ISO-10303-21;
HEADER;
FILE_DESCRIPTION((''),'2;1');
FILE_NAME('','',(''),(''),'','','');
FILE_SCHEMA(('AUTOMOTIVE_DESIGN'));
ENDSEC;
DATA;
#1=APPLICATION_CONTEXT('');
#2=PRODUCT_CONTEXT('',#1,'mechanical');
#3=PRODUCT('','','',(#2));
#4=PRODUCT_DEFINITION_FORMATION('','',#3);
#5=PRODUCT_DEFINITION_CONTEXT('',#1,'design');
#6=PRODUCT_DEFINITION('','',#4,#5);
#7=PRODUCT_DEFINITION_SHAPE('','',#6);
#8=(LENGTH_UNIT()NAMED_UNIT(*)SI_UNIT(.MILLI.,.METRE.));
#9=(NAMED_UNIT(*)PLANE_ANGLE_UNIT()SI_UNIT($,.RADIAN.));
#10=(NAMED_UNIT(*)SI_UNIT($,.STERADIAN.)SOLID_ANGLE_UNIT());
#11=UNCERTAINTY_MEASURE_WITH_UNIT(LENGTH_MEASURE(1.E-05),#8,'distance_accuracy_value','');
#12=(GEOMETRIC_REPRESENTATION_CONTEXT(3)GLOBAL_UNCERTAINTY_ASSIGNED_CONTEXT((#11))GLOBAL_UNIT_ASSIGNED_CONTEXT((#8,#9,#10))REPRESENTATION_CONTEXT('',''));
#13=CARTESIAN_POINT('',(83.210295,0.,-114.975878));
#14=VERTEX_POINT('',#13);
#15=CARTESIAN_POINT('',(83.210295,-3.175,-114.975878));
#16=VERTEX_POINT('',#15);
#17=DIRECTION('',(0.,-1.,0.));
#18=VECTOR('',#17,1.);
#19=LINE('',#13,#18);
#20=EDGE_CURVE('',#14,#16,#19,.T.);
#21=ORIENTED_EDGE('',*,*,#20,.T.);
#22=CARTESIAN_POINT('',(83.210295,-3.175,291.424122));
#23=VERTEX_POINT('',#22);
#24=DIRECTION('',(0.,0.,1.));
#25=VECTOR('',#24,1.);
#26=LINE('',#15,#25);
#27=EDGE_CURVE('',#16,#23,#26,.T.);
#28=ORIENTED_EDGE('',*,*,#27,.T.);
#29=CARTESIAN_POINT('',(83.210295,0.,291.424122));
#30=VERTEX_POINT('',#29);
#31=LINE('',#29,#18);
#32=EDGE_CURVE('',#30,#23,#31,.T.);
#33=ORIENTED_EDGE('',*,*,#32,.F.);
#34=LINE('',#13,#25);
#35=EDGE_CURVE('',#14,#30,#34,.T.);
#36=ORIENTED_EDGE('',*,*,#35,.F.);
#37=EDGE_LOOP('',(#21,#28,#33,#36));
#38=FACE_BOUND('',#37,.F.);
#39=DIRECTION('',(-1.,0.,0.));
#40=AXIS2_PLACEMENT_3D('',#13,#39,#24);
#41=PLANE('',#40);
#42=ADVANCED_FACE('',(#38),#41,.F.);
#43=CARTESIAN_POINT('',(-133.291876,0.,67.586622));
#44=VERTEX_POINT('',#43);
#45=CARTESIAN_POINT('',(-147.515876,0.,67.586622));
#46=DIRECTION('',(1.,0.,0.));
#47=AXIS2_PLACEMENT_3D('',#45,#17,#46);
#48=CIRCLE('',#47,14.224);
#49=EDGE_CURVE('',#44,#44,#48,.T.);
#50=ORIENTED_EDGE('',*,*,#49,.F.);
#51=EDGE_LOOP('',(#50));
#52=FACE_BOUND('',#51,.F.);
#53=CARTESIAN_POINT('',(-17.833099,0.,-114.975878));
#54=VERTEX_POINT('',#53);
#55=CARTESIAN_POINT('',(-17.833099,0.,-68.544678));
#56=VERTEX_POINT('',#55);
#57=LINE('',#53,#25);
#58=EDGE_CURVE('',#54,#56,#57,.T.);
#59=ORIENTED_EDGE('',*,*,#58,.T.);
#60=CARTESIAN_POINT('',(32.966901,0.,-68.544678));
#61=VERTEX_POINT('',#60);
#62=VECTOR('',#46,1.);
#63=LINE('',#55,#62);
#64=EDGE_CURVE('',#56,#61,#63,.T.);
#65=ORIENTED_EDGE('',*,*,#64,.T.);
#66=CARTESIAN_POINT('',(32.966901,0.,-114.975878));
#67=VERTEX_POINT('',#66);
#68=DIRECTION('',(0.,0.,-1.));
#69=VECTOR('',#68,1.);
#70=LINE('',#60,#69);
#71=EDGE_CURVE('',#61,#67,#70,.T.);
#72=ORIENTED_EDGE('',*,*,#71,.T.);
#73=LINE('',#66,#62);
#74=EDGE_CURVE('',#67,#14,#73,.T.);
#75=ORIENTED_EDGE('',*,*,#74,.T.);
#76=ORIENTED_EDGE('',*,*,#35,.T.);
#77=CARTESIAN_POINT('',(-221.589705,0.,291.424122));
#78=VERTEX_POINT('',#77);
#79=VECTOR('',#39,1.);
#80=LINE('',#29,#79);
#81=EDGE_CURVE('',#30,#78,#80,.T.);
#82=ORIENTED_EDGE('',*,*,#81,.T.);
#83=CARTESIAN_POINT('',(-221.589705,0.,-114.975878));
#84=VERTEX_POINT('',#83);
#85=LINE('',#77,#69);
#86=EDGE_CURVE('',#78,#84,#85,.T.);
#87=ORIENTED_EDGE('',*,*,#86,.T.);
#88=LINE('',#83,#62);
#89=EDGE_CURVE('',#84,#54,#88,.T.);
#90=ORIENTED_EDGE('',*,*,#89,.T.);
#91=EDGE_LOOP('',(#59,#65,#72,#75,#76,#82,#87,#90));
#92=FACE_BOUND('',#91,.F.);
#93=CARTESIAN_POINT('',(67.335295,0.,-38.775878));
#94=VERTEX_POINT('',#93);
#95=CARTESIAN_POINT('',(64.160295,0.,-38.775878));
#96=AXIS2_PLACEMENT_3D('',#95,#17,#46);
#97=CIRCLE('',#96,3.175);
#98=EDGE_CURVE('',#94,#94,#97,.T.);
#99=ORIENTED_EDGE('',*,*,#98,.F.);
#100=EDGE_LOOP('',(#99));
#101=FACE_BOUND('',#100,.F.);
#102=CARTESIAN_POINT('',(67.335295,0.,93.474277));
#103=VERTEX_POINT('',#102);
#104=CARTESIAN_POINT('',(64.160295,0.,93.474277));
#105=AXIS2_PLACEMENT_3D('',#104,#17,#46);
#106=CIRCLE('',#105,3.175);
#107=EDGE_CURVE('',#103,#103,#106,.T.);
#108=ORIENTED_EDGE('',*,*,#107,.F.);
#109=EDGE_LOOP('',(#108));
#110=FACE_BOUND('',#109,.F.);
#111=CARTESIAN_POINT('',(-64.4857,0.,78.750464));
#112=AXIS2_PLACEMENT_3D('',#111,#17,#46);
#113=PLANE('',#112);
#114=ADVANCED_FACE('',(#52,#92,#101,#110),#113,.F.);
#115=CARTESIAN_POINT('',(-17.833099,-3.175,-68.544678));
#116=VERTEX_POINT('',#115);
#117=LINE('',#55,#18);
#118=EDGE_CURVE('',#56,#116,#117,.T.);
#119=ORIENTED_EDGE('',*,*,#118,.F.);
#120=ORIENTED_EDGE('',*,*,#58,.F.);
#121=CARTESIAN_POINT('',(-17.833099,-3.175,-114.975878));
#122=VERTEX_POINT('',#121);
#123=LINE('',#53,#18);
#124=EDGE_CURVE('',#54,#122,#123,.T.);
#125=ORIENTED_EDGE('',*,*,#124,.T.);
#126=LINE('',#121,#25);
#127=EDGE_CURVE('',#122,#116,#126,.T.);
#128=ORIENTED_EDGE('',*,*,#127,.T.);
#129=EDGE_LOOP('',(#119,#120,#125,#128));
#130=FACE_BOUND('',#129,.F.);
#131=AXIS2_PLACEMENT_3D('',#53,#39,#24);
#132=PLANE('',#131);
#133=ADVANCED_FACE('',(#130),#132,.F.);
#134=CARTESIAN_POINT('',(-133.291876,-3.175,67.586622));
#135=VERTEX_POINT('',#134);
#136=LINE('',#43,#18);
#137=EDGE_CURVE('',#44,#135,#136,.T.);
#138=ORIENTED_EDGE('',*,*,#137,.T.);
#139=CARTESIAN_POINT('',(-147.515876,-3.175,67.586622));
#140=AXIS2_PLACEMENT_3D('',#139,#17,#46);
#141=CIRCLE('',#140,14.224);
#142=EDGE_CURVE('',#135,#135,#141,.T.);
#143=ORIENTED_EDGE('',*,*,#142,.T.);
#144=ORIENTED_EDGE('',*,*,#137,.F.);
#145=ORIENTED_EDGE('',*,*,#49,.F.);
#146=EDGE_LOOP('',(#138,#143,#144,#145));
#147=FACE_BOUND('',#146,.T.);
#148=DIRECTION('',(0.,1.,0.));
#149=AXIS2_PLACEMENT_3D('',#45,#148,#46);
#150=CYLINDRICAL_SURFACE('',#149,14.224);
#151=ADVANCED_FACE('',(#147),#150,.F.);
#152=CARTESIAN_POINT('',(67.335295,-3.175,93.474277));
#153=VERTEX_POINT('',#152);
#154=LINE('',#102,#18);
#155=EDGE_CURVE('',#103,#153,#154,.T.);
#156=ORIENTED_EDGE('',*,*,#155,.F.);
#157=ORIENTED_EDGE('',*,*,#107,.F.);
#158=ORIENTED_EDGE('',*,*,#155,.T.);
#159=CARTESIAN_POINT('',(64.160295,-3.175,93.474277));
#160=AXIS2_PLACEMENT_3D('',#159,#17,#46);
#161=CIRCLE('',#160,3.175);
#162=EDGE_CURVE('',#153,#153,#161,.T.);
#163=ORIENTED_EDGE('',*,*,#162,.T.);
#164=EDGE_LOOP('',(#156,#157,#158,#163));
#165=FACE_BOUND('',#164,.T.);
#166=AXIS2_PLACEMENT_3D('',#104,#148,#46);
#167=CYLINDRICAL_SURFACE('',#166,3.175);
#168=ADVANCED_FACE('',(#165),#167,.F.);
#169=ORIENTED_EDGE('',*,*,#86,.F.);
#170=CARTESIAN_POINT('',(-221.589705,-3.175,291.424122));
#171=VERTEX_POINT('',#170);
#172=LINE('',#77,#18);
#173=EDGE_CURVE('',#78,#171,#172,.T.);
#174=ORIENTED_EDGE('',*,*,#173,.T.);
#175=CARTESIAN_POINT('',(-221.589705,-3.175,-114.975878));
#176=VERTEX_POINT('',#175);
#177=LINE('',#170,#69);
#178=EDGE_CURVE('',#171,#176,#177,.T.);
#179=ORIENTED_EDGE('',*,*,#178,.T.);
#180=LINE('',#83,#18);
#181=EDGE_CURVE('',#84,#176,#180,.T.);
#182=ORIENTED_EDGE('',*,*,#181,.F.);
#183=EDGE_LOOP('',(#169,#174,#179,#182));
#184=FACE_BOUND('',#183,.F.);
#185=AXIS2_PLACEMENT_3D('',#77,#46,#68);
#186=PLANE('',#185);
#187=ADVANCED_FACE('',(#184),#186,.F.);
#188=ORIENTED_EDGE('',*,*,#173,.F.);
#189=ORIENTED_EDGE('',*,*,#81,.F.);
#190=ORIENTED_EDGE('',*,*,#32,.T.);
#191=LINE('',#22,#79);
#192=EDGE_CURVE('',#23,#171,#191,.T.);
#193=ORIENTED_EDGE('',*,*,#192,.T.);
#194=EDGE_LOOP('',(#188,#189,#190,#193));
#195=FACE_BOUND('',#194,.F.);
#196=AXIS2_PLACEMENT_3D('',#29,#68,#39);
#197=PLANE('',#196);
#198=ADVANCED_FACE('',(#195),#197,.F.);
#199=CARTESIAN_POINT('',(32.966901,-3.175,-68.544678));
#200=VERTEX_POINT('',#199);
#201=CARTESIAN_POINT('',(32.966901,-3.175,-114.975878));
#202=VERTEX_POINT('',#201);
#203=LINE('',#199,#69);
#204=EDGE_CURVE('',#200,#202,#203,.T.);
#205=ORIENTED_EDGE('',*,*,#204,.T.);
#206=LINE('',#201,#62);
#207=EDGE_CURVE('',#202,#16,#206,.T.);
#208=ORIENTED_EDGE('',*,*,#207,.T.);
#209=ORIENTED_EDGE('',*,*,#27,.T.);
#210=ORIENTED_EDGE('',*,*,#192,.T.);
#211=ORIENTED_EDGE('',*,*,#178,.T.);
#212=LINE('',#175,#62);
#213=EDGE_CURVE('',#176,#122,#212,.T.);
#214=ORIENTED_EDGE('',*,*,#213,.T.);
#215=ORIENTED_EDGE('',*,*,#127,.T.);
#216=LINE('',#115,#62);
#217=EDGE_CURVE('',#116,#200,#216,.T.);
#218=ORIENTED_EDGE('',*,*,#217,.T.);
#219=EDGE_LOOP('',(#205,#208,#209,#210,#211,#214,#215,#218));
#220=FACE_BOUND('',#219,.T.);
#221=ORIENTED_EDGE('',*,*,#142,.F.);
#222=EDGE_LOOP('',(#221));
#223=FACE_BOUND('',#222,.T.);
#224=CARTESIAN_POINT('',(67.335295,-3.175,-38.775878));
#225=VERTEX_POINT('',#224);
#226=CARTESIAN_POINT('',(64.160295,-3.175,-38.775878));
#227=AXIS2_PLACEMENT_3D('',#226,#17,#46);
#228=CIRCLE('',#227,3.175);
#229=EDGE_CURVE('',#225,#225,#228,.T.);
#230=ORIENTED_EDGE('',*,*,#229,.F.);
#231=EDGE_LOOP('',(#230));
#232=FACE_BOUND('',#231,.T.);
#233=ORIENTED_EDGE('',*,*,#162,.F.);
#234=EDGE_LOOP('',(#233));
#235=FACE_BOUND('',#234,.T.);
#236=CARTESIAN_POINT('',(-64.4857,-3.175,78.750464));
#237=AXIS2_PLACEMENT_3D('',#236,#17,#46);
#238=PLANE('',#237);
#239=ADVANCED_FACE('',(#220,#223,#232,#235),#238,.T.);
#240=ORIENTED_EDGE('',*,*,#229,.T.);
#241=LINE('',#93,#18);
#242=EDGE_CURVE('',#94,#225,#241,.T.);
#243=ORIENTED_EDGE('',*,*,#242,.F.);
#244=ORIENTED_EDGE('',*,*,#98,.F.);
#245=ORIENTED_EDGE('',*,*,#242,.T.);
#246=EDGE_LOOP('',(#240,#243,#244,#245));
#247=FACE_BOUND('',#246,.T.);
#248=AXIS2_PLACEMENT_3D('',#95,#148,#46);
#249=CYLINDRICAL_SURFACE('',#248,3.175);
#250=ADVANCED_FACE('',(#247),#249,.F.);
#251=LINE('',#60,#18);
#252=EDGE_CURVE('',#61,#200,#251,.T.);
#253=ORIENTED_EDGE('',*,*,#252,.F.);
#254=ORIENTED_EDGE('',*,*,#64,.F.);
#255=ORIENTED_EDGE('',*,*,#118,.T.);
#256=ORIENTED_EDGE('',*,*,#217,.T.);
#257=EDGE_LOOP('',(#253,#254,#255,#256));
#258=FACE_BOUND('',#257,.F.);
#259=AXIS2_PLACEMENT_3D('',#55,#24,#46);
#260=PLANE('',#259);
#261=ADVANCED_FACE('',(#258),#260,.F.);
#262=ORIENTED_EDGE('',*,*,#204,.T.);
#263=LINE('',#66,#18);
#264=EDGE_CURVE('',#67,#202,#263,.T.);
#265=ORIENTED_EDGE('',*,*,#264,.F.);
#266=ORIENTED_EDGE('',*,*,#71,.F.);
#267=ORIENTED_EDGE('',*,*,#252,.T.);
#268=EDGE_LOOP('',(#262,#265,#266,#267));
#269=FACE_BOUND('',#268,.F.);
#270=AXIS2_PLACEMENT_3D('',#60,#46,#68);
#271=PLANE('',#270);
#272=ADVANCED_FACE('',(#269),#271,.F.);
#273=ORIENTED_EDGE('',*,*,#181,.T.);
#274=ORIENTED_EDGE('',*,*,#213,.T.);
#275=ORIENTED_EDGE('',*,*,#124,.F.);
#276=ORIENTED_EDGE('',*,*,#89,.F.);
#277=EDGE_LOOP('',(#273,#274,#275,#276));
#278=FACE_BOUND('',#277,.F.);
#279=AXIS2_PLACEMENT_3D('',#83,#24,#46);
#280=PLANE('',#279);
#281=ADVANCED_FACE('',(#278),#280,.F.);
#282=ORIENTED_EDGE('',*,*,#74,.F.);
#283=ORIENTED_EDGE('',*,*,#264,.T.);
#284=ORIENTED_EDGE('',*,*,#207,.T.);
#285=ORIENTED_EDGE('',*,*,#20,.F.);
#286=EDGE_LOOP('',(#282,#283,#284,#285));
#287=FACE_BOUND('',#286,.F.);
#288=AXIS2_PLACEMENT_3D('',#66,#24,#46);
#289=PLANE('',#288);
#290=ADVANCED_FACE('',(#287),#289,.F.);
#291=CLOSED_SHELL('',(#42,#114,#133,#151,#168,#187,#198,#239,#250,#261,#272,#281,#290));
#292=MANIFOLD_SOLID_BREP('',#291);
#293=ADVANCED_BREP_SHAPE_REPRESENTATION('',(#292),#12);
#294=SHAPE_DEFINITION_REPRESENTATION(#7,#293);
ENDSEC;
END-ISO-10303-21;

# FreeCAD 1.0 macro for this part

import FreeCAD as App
import Part
import Sketcher
Q = App.Units.Quantity

doc = App.newDocument("Part")
body = doc.addObject("PartDesign::Body", "Body")

# Sketch on XZ plane
sketch1 = body.newObject("Sketcher::SketchObject", "Sketch")
sketch1.AttachmentSupport = (doc.getObject("XZ_Plane"), [""])
sketch1.MapMode = "FlatFace"
sketch1.addGeometry(Part.LineSegment(App.Vector(33, -115, 0), App.Vector(83.2, -115, 0)), False)
sketch1.addGeometry(Part.LineSegment(App.Vector(83.2, -115, 0), App.Vector(83.2, 291.4, 0)), False)
sketch1.addGeometry(Part.LineSegment(App.Vector(83.2, 291.4, 0), App.Vector(-221.6, 291.4, 0)), False)
sketch1.addGeometry(Part.LineSegment(App.Vector(-221.6, 291.4, 0), App.Vector(-221.6, -115, 0)), False)
sketch1.addGeometry(Part.LineSegment(App.Vector(-221.6, -115, 0), App.Vector(-17.8, -115, 0)), False)
sketch1.addGeometry(Part.LineSegment(App.Vector(-17.8, -115, 0), App.Vector(-17.8, -68.5, 0)), False)
sketch1.addGeometry(Part.LineSegment(App.Vector(-17.8, -68.5, 0), App.Vector(33, -68.5, 0)), False)
sketch1.addGeometry(Part.LineSegment(App.Vector(33, -68.5, 0), App.Vector(33, -115, 0)), False)
sketch1.addGeometry(Part.Circle(App.Vector(64.2, -38.8, 0), App.Vector(0, 0, 1), 3.2), False)
sketch1.addGeometry(Part.Circle(App.Vector(-147.5, 67.6, 0), App.Vector(0, 0, 1), 14.2), False)
sketch1.addGeometry(Part.Circle(App.Vector(64.2, 93.5, 0), App.Vector(0, 0, 1), 3.2), False)
sketch1.addConstraint(Sketcher.Constraint("Coincident", 0, 2, 1, 1))
sketch1.addConstraint(Sketcher.Constraint("Coincident", 1, 2, 2, 1))
sketch1.addConstraint(Sketcher.Constraint("Coincident", 2, 2, 3, 1))
sketch1.addConstraint(Sketcher.Constraint("Coincident", 3, 2, 4, 1))
sketch1.addConstraint(Sketcher.Constraint("Coincident", 4, 2, 5, 1))
sketch1.addConstraint(Sketcher.Constraint("Coincident", 5, 2, 6, 1))
sketch1.addConstraint(Sketcher.Constraint("Coincident", 6, 2, 7, 1))
sketch1.addConstraint(Sketcher.Constraint("Coincident", 7, 2, 0, 1))
sketch1.addConstraint(Sketcher.Constraint("Horizontal", 0))
sketch1.addConstraint(Sketcher.Constraint("Vertical", 1))
sketch1.addConstraint(Sketcher.Constraint("Horizontal", 2))
sketch1.addConstraint(Sketcher.Constraint("Vertical", 3))
sketch1.addConstraint(Sketcher.Constraint("Horizontal", 4))
sketch1.addConstraint(Sketcher.Constraint("Vertical", 5))
sketch1.addConstraint(Sketcher.Constraint("Horizontal", 6))
sketch1.addConstraint(Sketcher.Constraint("Vertical", 7))
sketch1.addConstraint(Sketcher.Constraint("Equal", 8, 10))
sketch1.addConstraint(Sketcher.Constraint("Horizontal", 0, 2, 3, 2))
sketch1.addConstraint(Sketcher.Constraint("Vertical", 8, 3, 10, 3))
sketch1.addConstraint(Sketcher.Constraint("Diameter", 8, Q("0.25 in")))
sketch1.addConstraint(Sketcher.Constraint("Diameter", 9, Q("1.12 in")))
sketch1.addConstraint(Sketcher.Constraint("DistanceX", 2, 2, 2, 1, Q("12 in")))
sketch1.addConstraint(Sketcher.Constraint("DistanceX", 6, 1, 6, 2, Q("2 in")))
sketch1.addConstraint(Sketcher.Constraint("DistanceY", 1, 1, 1, 2, Q("16 in")))
sketch1.addConstraint(Sketcher.Constraint("DistanceY", 0, 2, 8, 3, Q("3 in")))
sketch1.addConstraint(Sketcher.Constraint("DistanceY", 5, 1, 5, 2, Q("1.828 in")))
sketch1.addConstraint(Sketcher.Constraint("DistanceX", 8, 3, 0, 2, Q("0.75 in")))
sketch1.addConstraint(Sketcher.Constraint("DistanceY", 8, 3, 9, 3, Q("4.1875 in")))
sketch1.addConstraint(Sketcher.Constraint("DistanceX", 4, 2, -1, 1, Q("17.833099 mm")))
sketch1.addConstraint(Sketcher.Constraint("DistanceX", 0, 1, 0, 2, Q("50.243394 mm")))
sketch1.addConstraint(Sketcher.Constraint("DistanceY", -1, 1, 1, 2, Q("291.424122 mm")))
sketch1.addConstraint(Sketcher.Constraint("DistanceX", 9, 3, 8, 3, Q("211.676171 mm")))
sketch1.addConstraint(Sketcher.Constraint("DistanceY", -1, 1, 10, 3, Q("93.474277 mm")))
pad1 = body.newObject("PartDesign::Pad", "Pad")
pad1.Profile = sketch1
pad1.Length = Q("0.125 in")

doc.recompute()
